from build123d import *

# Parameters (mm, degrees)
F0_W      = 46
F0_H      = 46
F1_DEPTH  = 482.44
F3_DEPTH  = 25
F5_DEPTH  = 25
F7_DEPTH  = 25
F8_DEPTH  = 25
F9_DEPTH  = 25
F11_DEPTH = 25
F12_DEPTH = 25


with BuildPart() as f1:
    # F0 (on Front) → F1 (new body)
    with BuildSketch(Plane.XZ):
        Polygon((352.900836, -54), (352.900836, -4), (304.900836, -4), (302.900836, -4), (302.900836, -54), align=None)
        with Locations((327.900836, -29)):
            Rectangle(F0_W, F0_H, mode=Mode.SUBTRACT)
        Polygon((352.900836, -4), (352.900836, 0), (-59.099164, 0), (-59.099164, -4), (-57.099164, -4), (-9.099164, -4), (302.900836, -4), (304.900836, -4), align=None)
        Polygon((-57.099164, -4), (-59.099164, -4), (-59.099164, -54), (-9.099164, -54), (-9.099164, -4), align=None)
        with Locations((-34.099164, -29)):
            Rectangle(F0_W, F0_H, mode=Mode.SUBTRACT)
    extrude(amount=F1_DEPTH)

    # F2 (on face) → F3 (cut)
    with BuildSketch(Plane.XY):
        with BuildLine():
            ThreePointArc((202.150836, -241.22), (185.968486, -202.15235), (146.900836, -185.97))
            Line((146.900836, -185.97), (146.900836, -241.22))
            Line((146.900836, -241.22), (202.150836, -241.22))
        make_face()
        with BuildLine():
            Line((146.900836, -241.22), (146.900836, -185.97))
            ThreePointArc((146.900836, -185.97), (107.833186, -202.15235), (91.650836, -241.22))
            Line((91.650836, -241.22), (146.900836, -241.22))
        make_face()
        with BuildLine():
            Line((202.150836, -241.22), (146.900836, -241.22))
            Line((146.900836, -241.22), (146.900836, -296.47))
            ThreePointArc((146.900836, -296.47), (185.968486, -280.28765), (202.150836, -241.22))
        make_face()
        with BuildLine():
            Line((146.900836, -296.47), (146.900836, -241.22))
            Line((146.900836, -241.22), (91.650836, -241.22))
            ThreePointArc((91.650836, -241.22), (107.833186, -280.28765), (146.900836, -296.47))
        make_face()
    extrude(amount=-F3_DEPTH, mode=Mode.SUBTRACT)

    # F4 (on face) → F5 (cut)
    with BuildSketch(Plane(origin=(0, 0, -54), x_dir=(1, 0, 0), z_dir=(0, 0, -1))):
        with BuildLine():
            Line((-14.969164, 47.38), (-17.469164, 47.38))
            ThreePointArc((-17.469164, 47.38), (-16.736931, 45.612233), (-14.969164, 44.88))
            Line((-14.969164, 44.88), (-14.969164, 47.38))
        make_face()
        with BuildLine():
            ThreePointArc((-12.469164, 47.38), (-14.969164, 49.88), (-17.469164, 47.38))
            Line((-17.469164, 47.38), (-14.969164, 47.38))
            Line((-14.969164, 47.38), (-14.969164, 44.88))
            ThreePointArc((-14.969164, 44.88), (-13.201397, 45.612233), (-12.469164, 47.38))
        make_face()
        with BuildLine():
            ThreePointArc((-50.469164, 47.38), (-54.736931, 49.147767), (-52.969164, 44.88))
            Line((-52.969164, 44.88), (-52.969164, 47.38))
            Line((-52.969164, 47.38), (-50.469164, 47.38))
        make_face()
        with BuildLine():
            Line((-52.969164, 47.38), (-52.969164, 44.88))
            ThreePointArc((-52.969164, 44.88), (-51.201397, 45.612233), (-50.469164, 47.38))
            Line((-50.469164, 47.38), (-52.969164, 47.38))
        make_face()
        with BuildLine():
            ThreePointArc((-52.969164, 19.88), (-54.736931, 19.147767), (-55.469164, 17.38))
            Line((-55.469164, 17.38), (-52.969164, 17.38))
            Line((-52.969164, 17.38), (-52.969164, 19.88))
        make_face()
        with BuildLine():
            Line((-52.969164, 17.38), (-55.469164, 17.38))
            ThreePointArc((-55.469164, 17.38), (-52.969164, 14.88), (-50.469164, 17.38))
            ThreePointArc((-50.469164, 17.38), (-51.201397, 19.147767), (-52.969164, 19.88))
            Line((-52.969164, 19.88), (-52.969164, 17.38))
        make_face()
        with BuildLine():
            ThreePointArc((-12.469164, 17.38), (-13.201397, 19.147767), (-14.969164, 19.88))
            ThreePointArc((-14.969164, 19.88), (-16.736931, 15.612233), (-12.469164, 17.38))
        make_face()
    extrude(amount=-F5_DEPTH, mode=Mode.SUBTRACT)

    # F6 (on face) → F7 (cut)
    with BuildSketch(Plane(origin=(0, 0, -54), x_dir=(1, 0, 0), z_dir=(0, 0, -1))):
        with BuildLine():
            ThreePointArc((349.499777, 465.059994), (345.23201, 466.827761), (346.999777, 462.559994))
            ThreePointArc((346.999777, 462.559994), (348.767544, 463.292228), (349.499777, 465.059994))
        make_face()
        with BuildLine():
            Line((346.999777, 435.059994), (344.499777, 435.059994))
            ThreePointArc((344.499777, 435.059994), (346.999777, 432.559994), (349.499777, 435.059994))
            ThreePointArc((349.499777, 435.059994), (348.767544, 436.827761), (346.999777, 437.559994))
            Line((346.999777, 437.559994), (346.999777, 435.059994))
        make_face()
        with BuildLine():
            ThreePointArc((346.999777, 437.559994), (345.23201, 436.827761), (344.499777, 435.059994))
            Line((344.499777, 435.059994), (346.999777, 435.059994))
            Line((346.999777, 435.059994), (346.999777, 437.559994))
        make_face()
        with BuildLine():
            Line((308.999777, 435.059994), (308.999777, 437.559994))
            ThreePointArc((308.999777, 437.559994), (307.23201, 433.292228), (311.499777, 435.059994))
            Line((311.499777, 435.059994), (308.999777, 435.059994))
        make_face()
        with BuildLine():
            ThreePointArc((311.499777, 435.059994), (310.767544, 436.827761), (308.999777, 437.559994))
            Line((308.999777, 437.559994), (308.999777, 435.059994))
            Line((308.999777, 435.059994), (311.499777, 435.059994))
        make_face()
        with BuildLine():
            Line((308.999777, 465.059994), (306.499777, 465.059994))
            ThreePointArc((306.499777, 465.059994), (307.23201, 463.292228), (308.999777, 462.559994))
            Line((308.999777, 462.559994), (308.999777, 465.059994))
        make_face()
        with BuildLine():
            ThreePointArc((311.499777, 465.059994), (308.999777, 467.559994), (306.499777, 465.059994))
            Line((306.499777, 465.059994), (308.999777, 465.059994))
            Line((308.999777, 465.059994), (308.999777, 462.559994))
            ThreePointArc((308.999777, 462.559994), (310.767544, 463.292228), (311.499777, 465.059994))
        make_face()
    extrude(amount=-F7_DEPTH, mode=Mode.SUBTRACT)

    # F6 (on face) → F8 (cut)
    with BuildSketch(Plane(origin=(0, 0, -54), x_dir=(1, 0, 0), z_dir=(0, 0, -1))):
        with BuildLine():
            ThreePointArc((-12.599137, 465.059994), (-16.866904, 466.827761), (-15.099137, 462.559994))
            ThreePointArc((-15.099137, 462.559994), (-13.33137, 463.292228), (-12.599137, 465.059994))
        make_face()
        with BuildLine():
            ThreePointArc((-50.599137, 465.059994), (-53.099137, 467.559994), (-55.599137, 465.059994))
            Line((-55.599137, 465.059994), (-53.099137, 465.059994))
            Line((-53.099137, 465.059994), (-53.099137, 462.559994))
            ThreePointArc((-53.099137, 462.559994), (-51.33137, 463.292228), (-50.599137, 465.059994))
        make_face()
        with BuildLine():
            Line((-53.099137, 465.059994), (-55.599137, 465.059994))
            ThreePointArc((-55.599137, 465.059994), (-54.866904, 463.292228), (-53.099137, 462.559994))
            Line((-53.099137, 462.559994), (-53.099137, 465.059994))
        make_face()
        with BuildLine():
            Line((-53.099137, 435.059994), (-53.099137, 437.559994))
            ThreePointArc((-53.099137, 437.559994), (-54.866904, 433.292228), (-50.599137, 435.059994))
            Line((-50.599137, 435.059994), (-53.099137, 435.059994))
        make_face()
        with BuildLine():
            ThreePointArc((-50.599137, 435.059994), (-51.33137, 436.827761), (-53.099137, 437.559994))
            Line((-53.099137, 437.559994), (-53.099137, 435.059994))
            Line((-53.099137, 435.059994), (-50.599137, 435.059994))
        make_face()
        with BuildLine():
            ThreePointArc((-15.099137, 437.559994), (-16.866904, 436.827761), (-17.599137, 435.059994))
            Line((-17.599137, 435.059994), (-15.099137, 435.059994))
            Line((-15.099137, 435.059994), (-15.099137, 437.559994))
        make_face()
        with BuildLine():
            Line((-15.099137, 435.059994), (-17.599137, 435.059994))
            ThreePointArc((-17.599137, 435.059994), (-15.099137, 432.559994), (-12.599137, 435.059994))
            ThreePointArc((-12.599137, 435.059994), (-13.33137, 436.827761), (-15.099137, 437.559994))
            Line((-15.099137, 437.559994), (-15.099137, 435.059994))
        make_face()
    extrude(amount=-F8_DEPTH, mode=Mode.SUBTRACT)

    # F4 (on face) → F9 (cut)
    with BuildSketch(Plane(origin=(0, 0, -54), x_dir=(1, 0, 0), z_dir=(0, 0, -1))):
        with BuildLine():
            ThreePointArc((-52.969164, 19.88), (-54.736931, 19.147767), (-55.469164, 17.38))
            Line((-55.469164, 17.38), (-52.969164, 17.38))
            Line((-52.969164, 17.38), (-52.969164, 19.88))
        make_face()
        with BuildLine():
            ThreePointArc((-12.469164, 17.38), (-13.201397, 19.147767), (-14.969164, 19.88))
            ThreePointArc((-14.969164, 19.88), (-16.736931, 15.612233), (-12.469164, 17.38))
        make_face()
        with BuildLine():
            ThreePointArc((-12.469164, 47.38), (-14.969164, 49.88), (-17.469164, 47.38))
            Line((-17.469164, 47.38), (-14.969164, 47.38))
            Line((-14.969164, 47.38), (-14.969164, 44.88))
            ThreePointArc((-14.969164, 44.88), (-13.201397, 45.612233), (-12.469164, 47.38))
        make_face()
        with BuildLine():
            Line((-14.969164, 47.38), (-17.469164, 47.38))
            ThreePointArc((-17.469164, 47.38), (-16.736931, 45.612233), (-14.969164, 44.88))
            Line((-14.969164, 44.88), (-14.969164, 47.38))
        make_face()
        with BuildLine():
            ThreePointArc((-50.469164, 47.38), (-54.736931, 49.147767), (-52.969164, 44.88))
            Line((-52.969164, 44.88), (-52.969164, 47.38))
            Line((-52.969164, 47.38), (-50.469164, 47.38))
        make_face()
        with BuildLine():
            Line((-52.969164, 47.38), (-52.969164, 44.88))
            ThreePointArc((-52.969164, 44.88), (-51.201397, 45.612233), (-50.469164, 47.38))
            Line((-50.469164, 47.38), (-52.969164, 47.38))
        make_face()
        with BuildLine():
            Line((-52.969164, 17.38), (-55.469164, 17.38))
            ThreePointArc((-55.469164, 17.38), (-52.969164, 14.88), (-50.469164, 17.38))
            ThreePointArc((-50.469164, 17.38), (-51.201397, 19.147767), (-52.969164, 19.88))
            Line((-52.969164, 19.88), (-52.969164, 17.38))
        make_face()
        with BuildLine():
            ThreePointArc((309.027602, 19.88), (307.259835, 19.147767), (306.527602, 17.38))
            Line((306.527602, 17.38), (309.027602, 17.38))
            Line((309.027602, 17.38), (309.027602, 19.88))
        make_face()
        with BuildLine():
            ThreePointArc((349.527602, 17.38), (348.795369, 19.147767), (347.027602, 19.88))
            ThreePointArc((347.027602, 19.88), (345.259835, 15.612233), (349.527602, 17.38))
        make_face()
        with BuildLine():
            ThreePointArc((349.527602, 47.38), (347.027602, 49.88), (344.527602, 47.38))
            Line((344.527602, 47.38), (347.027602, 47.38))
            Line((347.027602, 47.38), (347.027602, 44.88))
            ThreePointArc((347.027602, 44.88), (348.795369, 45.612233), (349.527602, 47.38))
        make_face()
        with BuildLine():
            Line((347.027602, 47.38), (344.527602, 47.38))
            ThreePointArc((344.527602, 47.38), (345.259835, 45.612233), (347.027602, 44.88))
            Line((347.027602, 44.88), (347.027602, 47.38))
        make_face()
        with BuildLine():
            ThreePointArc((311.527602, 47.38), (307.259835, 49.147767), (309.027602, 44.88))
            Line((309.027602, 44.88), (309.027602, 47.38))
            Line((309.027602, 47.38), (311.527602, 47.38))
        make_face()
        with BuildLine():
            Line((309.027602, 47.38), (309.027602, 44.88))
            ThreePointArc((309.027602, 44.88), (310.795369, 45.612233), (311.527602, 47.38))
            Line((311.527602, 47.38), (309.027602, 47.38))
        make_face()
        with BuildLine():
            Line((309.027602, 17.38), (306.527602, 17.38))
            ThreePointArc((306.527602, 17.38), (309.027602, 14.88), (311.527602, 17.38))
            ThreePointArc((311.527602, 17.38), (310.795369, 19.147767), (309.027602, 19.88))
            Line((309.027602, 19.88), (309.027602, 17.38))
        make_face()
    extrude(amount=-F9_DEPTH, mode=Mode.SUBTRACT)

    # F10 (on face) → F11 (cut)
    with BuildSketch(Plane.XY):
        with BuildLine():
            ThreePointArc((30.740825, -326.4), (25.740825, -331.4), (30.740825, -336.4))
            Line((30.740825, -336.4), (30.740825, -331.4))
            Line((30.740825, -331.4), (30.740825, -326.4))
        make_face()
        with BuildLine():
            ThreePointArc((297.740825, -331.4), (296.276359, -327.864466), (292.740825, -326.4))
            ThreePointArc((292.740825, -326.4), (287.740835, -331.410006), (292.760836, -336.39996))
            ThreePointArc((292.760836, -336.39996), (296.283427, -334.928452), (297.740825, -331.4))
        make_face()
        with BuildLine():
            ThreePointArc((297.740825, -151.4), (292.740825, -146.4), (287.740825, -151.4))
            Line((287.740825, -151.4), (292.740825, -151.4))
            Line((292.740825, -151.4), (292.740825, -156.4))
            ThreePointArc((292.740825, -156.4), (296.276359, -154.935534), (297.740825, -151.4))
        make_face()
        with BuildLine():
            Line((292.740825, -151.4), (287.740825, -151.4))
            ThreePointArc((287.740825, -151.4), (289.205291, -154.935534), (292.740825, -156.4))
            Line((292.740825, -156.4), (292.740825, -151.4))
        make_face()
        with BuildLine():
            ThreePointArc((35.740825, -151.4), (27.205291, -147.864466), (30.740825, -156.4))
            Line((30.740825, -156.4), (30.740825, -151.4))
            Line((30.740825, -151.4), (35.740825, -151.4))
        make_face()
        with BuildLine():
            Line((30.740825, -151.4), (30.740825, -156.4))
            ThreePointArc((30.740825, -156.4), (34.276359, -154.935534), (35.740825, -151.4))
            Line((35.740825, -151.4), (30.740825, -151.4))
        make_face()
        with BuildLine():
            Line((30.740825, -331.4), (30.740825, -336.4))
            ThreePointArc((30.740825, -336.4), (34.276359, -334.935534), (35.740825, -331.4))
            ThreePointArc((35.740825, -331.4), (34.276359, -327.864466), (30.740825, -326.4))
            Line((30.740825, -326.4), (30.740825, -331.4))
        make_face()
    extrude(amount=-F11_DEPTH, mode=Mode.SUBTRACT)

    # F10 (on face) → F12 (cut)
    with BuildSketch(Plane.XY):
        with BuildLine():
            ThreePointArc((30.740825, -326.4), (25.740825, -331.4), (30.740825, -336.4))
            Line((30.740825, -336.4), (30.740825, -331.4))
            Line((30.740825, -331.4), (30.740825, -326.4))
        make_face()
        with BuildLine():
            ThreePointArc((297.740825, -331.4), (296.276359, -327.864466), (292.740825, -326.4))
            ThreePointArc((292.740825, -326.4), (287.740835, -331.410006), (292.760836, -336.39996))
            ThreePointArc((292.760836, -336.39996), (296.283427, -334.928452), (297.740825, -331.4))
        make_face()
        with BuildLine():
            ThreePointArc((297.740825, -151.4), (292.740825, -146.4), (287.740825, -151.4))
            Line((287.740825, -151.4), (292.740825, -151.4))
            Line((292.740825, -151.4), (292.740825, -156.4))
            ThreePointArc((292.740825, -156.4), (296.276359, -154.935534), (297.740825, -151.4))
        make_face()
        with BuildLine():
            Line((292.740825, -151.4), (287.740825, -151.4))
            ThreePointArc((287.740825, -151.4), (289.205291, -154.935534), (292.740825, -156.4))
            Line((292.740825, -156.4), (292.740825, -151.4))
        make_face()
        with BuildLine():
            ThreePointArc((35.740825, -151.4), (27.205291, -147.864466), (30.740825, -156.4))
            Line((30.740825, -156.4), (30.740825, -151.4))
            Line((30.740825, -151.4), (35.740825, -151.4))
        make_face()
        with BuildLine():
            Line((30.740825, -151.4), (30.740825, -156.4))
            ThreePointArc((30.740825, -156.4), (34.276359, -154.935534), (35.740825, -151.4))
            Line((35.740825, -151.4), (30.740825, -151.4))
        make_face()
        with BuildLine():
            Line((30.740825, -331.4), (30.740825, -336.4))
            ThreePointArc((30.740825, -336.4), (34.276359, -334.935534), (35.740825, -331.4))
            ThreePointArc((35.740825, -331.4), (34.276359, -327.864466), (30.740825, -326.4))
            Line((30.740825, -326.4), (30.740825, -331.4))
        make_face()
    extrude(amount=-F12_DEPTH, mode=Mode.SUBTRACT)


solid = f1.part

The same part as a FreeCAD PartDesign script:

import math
import FreeCAD as App
import Part
import Sketcher
from FreeCAD import Vector

doc = App.newDocument("Part")
body = doc.addObject("PartDesign::Body", "Body")

# Sketch on XZ plane
sketch1 = body.newObject("Sketcher::SketchObject", "Sketch")
sketch1.AttachmentSupport = (doc.getObject("XZ_Plane"), [""])
sketch1.MapMode = "FlatFace"
sketch1.addGeometry(Part.LineSegment(Vector(353, -54, 0), Vector(353, 0, 0)), False)
sketch1.addGeometry(Part.LineSegment(Vector(353, 0, 0), Vector(-59, 0, 0)), False)
sketch1.addGeometry(Part.LineSegment(Vector(-59, 0, 0), Vector(-59, -54, 0)), False)
sketch1.addGeometry(Part.LineSegment(Vector(-59, -54, 0), Vector(-9, -54, 0)), False)
sketch1.addGeometry(Part.LineSegment(Vector(-9, -54, 0), Vector(-9, -4, 0)), False)
sketch1.addGeometry(Part.LineSegment(Vector(-9, -4, 0), Vector(303, -4, 0)), False)
sketch1.addGeometry(Part.LineSegment(Vector(303, -4, 0), Vector(303, -54, 0)), False)
sketch1.addGeometry(Part.LineSegment(Vector(303, -54, 0), Vector(353, -54, 0)), False)
sketch1.addGeometry(Part.LineSegment(Vector(-11, -52, 0), Vector(-57, -52, 0)), False)
sketch1.addGeometry(Part.LineSegment(Vector(-57, -52, 0), Vector(-57, -6, 0)), False)
sketch1.addGeometry(Part.LineSegment(Vector(-57, -6, 0), Vector(-11, -6, 0)), False)
sketch1.addGeometry(Part.LineSegment(Vector(-11, -6, 0), Vector(-11, -52, 0)), False)
sketch1.addGeometry(Part.LineSegment(Vector(351, -52, 0), Vector(305, -52, 0)), False)
sketch1.addGeometry(Part.LineSegment(Vector(305, -52, 0), Vector(305, -6, 0)), False)
sketch1.addGeometry(Part.LineSegment(Vector(305, -6, 0), Vector(351, -6, 0)), False)
sketch1.addGeometry(Part.LineSegment(Vector(351, -6, 0), Vector(351, -52, 0)), False)
sketch1.addConstraint(Sketcher.Constraint("Coincident", 0, 2, 1, 1))
sketch1.addConstraint(Sketcher.Constraint("Coincident", 1, 2, 2, 1))
sketch1.addConstraint(Sketcher.Constraint("Coincident", 2, 2, 3, 1))
sketch1.addConstraint(Sketcher.Constraint("Coincident", 3, 2, 4, 1))
sketch1.addConstraint(Sketcher.Constraint("Coincident", 4, 2, 5, 1))
sketch1.addConstraint(Sketcher.Constraint("Coincident", 5, 2, 6, 1))
sketch1.addConstraint(Sketcher.Constraint("Coincident", 6, 2, 7, 1))
sketch1.addConstraint(Sketcher.Constraint("Coincident", 7, 2, 0, 1))
sketch1.addConstraint(Sketcher.Constraint("Coincident", 8, 2, 9, 1))
sketch1.addConstraint(Sketcher.Constraint("Coincident", 9, 2, 10, 1))
sketch1.addConstraint(Sketcher.Constraint("Coincident", 10, 2, 11, 1))
sketch1.addConstraint(Sketcher.Constraint("Coincident", 11, 2, 8, 1))
sketch1.addConstraint(Sketcher.Constraint("Coincident", 12, 2, 13, 1))
sketch1.addConstraint(Sketcher.Constraint("Coincident", 13, 2, 14, 1))
sketch1.addConstraint(Sketcher.Constraint("Coincident", 14, 2, 15, 1))
sketch1.addConstraint(Sketcher.Constraint("Coincident", 15, 2, 12, 1))
sketch1.addConstraint(Sketcher.Constraint("Vertical", 0))
sketch1.addConstraint(Sketcher.Constraint("Horizontal", 1))
sketch1.addConstraint(Sketcher.Constraint("Vertical", 2))
sketch1.addConstraint(Sketcher.Constraint("Horizontal", 3))
sketch1.addConstraint(Sketcher.Constraint("Vertical", 4))
sketch1.addConstraint(Sketcher.Constraint("Horizontal", 5))
sketch1.addConstraint(Sketcher.Constraint("Vertical", 6))
sketch1.addConstraint(Sketcher.Constraint("Horizontal", 7))
sketch1.addConstraint(Sketcher.Constraint("Horizontal", 8))
sketch1.addConstraint(Sketcher.Constraint("Vertical", 9))
sketch1.addConstraint(Sketcher.Constraint("Horizontal", 10))
sketch1.addConstraint(Sketcher.Constraint("Vertical", 11))
sketch1.addConstraint(Sketcher.Constraint("Horizontal", 12))
sketch1.addConstraint(Sketcher.Constraint("Vertical", 13))
sketch1.addConstraint(Sketcher.Constraint("Horizontal", 14))
sketch1.addConstraint(Sketcher.Constraint("Vertical", 15))
sketch1.addConstraint(Sketcher.Constraint("PointOnObject", 0, 2, -1))
sketch1.addConstraint(Sketcher.Constraint("Horizontal", 3, 2, 6, 2))
sketch1.addConstraint(Sketcher.Constraint("Horizontal", 11, 2, 12, 2))
sketch1.addConstraint(Sketcher.Constraint("Horizontal", 10, 2, 13, 2))
sketch1.addConstraint(Sketcher.Constraint("Equal", 3, 7))
sketch1.addConstraint(Sketcher.Constraint("Equal", 10, 12))
sketch1.addConstraint(Sketcher.Constraint("Equal", 7, 4))
sketch1.addConstraint(Sketcher.Constraint("Equal", 14, 9))
sketch1.addConstraint(Sketcher.Constraint("DistanceX", 1, 2, 1, 1, 412.0))
sketch1.addConstraint(Sketcher.Constraint("DistanceX", 3, 1, 3, 2, 50.0))
sketch1.addConstraint(Sketcher.Constraint("DistanceX", 8, 2, 8, 1, 46.0))
sketch1.addConstraint(Sketcher.Constraint("DistanceY", 0, 1, 0, 2, 54.0))
sketch1.addConstraint(Sketcher.Constraint("DistanceY", 8, 2, -1, 1, 52.0))
sketch1.addConstraint(Sketcher.Constraint("DistanceX", 2, 2, 8, 2, 2.0))
sketch1.addConstraint(Sketcher.Constraint("DistanceX", 6, 2, 12, 2, 2.0))
sketch1.addConstraint(Sketcher.Constraint("DistanceX", -1, 1, 0, 2, 352.900836))
pad1 = body.newObject("PartDesign::Pad", "Pad")
pad1.Profile = sketch1
pad1.Length = 482.44

# Sketch on XY plane
sketch2 = body.newObject("Sketcher::SketchObject", "Sketch001")
sketch2.AttachmentSupport = (doc.getObject("XY_Plane"), [""])
sketch2.MapMode = "FlatFace"
sketch2.addGeometry(Part.ArcOfCircle(Part.Circle(Vector(147, -241, 0), Vector(0, 0, 1), 55), math.radians(0), math.radians(90)), False)
sketch2.addGeometry(Part.ArcOfCircle(Part.Circle(Vector(147, -241, 0), Vector(0, 0, 1), 55), math.radians(90), math.radians(180)), False)
sketch2.addGeometry(Part.ArcOfCircle(Part.Circle(Vector(147, -241, 0), Vector(0, 0, 1), 55), math.radians(180), math.radians(270)), False)
sketch2.addGeometry(Part.ArcOfCircle(Part.Circle(Vector(147, -241, 0), Vector(0, 0, 1), 55), math.radians(-90), math.radians(0)), False)
sketch2.addConstraint(Sketcher.Constraint("Tangent", 0, 2, 1, 1))
sketch2.addConstraint(Sketcher.Constraint("Tangent", 1, 2, 2, 1))
sketch2.addConstraint(Sketcher.Constraint("Tangent", 2, 2, 3, 1))
sketch2.addConstraint(Sketcher.Constraint("Tangent", 3, 2, 0, 1))
sketch2.addConstraint(Sketcher.Constraint("Equal", 0, 1))
sketch2.addConstraint(Sketcher.Constraint("Horizontal", 3, 3, 1, 2))
sketch2.addConstraint(Sketcher.Constraint("Horizontal", 1, 2, 3, 2))
sketch2.addConstraint(Sketcher.Constraint("Vertical", 3, 3, 0, 2))
sketch2.addConstraint(Sketcher.Constraint("Vertical", 0, 2, 2, 2))
sketch2.addConstraint(Sketcher.Constraint("Radius", 0, 55.249999))
sketch2.addConstraint(Sketcher.Constraint("DistanceY", 0, 3, -1, 1, 241.219999))
sketch2.addConstraint(Sketcher.Constraint("DistanceX", -1, 1, 0, 3, 146.900837))
pocket1 = body.newObject("PartDesign::Pocket", "Pocket")
pocket1.Profile = sketch2
pocket1.Length = 25

# Sketch on XY plane
sketch3 = body.newObject("Sketcher::SketchObject", "Sketch002")
sketch3.AttachmentSupport = (doc.getObject("XY_Plane"), [""])
sketch3.MapMode = "FlatFace"
sketch3.AttachmentOffset = App.Placement(Vector(0, 0, -54), App.Rotation())
sketch3.addGeometry(Part.ArcOfCircle(Part.Circle(Vector(-15, -47.4, 0), Vector(0, 0, 1), 2.5), math.radians(90), math.radians(180)), False)
sketch3.addGeometry(Part.ArcOfCircle(Part.Circle(Vector(-15, -47.4, 0), Vector(0, 0, 1), 2.5), math.radians(0), math.radians(90)), False)
sketch3.addGeometry(Part.ArcOfCircle(Part.Circle(Vector(-15, -47.4, 0), Vector(0, 0, 1), 2.5), math.radians(180), math.radians(360)), False)
sketch3.addGeometry(Part.ArcOfCircle(Part.Circle(Vector(-53, -47.4, 0), Vector(0, 0, 1), 2.5), math.radians(90), math.radians(360)), False)
sketch3.addGeometry(Part.ArcOfCircle(Part.Circle(Vector(-53, -47.4, 0), Vector(0, 0, 1), 2.5), math.radians(0), math.radians(90)), False)
sketch3.addGeometry(Part.ArcOfCircle(Part.Circle(Vector(-53, -17.4, 0), Vector(0, 0, 1), 2.5), math.radians(180), math.radians(270)), False)
sketch3.addGeometry(Part.ArcOfCircle(Part.Circle(Vector(-53, -17.4, 0), Vector(0, 0, 1), 2.5), math.radians(0), math.radians(180)), False)
sketch3.addGeometry(Part.ArcOfCircle(Part.Circle(Vector(-53, -17.4, 0), Vector(0, 0, 1), 2.5), math.radians(-90), math.radians(0)), False)
sketch3.addGeometry(Part.ArcOfCircle(Part.Circle(Vector(-15, -17.4, 0), Vector(0, 0, 1), 2.5), math.radians(-90), math.radians(0)), False)
sketch3.addGeometry(Part.ArcOfCircle(Part.Circle(Vector(-15, -17.4, 0), Vector(0, 0, 1), 2.5), math.radians(0), math.radians(270)), False)
sketch3.addConstraint(Sketcher.Constraint("Tangent", 0, 1, 1, 2))
sketch3.addConstraint(Sketcher.Constraint("Tangent", 1, 1, 2, 2))
sketch3.addConstraint(Sketcher.Constraint("Tangent", 2, 1, 0, 2))
sketch3.addConstraint(Sketcher.Constraint("Tangent", 3, 1, 4, 2))
sketch3.addConstraint(Sketcher.Constraint("Coincident", 4, 1, 3, 2))
sketch3.addConstraint(Sketcher.Constraint("Tangent", 5, 1, 6, 2))
sketch3.addConstraint(Sketcher.Constraint("Tangent", 6, 1, 7, 2))
sketch3.addConstraint(Sketcher.Constraint("Tangent", 7, 1, 5, 2))
sketch3.addConstraint(Sketcher.Constraint("Tangent", 8, 1, 9, 2))
sketch3.addConstraint(Sketcher.Constraint("Coincident", 9, 1, 8, 2))
sketch3.addConstraint(Sketcher.Constraint("Equal", 2, 3))
sketch3.addConstraint(Sketcher.Constraint("Equal", 4, 5))
sketch3.addConstraint(Sketcher.Constraint("Equal", 7, 8))
sketch3.addConstraint(Sketcher.Constraint("Horizontal", 2, 3, 3, 3))
sketch3.addConstraint(Sketcher.Constraint("Horizontal", 7, 3, 8, 3))
sketch3.addConstraint(Sketcher.Constraint("Horizontal", 4, 3, 1, 1))
sketch3.addConstraint(Sketcher.Constraint("Horizontal", 1, 1, 2, 1))
sketch3.addConstraint(Sketcher.Constraint("Horizontal", 2, 1, 4, 1))
sketch3.addConstraint(Sketcher.Constraint("Horizontal", 9, 3, 5, 1))
sketch3.addConstraint(Sketcher.Constraint("Horizontal", 5, 1, 6, 1))
sketch3.addConstraint(Sketcher.Constraint("Horizontal", 6, 1, 9, 1))
sketch3.addConstraint(Sketcher.Constraint("Vertical", 4, 3, 5, 3))
sketch3.addConstraint(Sketcher.Constraint("Vertical", 2, 3, 8, 3))
sketch3.addConstraint(Sketcher.Constraint("Vertical", 9, 3, 0, 1))
sketch3.addConstraint(Sketcher.Constraint("Vertical", 7, 3, 3, 1))
sketch3.addConstraint(Sketcher.Constraint("Vertical", 3, 1, 7, 1))
sketch3.addConstraint(Sketcher.Constraint("Vertical", 0, 1, 8, 1))
sketch3.addConstraint(Sketcher.Constraint("Radius", 0, 2.5))
sketch3.addConstraint(Sketcher.Constraint("DistanceX", 3, 3, 0, 3, 38.0))
sketch3.addConstraint(Sketcher.Constraint("DistanceY", 4, 3, 5, 3, 30.0))
sketch3.addConstraint(Sketcher.Constraint("DistanceY", 0, 3, -1, 1, 47.38))
sketch3.addConstraint(Sketcher.Constraint("DistanceX", 0, 3, -1, 1, 14.969164))
pocket2 = body.newObject("PartDesign::Pocket", "Pocket001")
pocket2.Profile = sketch3
pocket2.Length = 25
pocket2.Reversed = True

# Sketch on XY plane
sketch4 = body.newObject("Sketcher::SketchObject", "Sketch003")
sketch4.AttachmentSupport = (doc.getObject("XY_Plane"), [""])
sketch4.MapMode = "FlatFace"
sketch4.AttachmentOffset = App.Placement(Vector(0, 0, -54), App.Rotation())
sketch4.addGeometry(Part.ArcOfCircle(Part.Circle(Vector(347, -465.1, 0), Vector(0, 0, 1), 2.5), math.radians(90), math.radians(360)), False)
sketch4.addGeometry(Part.ArcOfCircle(Part.Circle(Vector(347, -465.1, 0), Vector(0, 0, 1), 2.5), math.radians(0), math.radians(90)), False)
sketch4.addGeometry(Part.ArcOfCircle(Part.Circle(Vector(347, -435.1, 0), Vector(0, 0, 1), 2.5), math.radians(0), math.radians(180)), False)
sketch4.addGeometry(Part.ArcOfCircle(Part.Circle(Vector(347, -435.1, 0), Vector(0, 0, 1), 2.5), math.radians(-90), math.radians(0)), False)
sketch4.addGeometry(Part.ArcOfCircle(Part.Circle(Vector(347, -435.1, 0), Vector(0, 0, 1), 2.5), math.radians(180), math.radians(270)), False)
sketch4.addGeometry(Part.ArcOfCircle(Part.Circle(Vector(309, -435.1, 0), Vector(0, 0, 1), 2.5), math.radians(0), math.radians(270)), False)
sketch4.addGeometry(Part.ArcOfCircle(Part.Circle(Vector(309, -435.1, 0), Vector(0, 0, 1), 2.5), math.radians(-90), math.radians(0)), False)
sketch4.addGeometry(Part.ArcOfCircle(Part.Circle(Vector(309, -465.1, 0), Vector(0, 0, 1), 2.5), math.radians(90), math.radians(180)), False)
sketch4.addGeometry(Part.ArcOfCircle(Part.Circle(Vector(309, -465.1, 0), Vector(0, 0, 1), 2.5), math.radians(0), math.radians(90)), False)
sketch4.addGeometry(Part.ArcOfCircle(Part.Circle(Vector(309, -465.1, 0), Vector(0, 0, 1), 2.5), math.radians(180), math.radians(360)), False)
sketch4.addConstraint(Sketcher.Constraint("Tangent", 0, 1, 1, 2))
sketch4.addConstraint(Sketcher.Constraint("Coincident", 1, 1, 0, 2))
sketch4.addConstraint(Sketcher.Constraint("Tangent", 2, 1, 3, 2))
sketch4.addConstraint(Sketcher.Constraint("Tangent", 3, 1, 4, 2))
sketch4.addConstraint(Sketcher.Constraint("Tangent", 4, 1, 2, 2))
sketch4.addConstraint(Sketcher.Constraint("Tangent", 5, 1, 6, 2))
sketch4.addConstraint(Sketcher.Constraint("Coincident", 6, 1, 5, 2))
sketch4.addConstraint(Sketcher.Constraint("Tangent", 7, 1, 8, 2))
sketch4.addConstraint(Sketcher.Constraint("Tangent", 8, 1, 9, 2))
sketch4.addConstraint(Sketcher.Constraint("Tangent", 9, 1, 7, 2))
sketch4.addConstraint(Sketcher.Constraint("Equal", 1, 2))
sketch4.addConstraint(Sketcher.Constraint("Equal", 4, 5))
sketch4.addConstraint(Sketcher.Constraint("Equal", 6, 7))
sketch4.addConstraint(Sketcher.Constraint("Horizontal", 4, 3, 5, 3))
sketch4.addConstraint(Sketcher.Constraint("Horizontal", 1, 3, 7, 3))
sketch4.addConstraint(Sketcher.Constraint("Horizontal", 9, 3, 1, 1))
sketch4.addConstraint(Sketcher.Constraint("Horizontal", 6, 3, 2, 1))
sketch4.addConstraint(Sketcher.Constraint("Horizontal", 2, 1, 4, 1))
sketch4.addConstraint(Sketcher.Constraint("Horizontal", 4, 1, 5, 1))
sketch4.addConstraint(Sketcher.Constraint("Horizontal", 1, 1, 8, 1))
sketch4.addConstraint(Sketcher.Constraint("Horizontal", 8, 1, 9, 1))
sketch4.addConstraint(Sketcher.Constraint("Vertical", 1, 3, 2, 3))
sketch4.addConstraint(Sketcher.Constraint("Vertical", 6, 3, 7, 3))
sketch4.addConstraint(Sketcher.Constraint("Vertical", 4, 3, 0, 1))
sketch4.addConstraint(Sketcher.Constraint("Vertical", 0, 1, 3, 1))
sketch4.addConstraint(Sketcher.Constraint("Vertical", 9, 3, 6, 1))
sketch4.addConstraint(Sketcher.Constraint("Vertical", 6, 1, 7, 1))
sketch4.addConstraint(Sketcher.Constraint("Radius", 0, 2.5))
sketch4.addConstraint(Sketcher.Constraint("DistanceY", 0, 3, 2, 3, 30.0))
sketch4.addConstraint(Sketcher.Constraint("DistanceX", 5, 3, 4, 3, 38.0))
sketch4.addConstraint(Sketcher.Constraint("DistanceX", -1, 1, 7, 3, 308.999779))
sketch4.addConstraint(Sketcher.Constraint("DistanceY", 0, 3, -1, 1, 465.059994))
pocket3 = body.newObject("PartDesign::Pocket", "Pocket002")
pocket3.Profile = sketch4
pocket3.Length = 25
pocket3.Reversed = True

# Sketch on XY plane
sketch5 = body.newObject("Sketcher::SketchObject", "Sketch004")
sketch5.AttachmentSupport = (doc.getObject("XY_Plane"), [""])
sketch5.MapMode = "FlatFace"
sketch5.AttachmentOffset = App.Placement(Vector(0, 0, -54), App.Rotation())
sketch5.addGeometry(Part.ArcOfCircle(Part.Circle(Vector(-15.1, -465.1, 0), Vector(0, 0, 1), 2.5), math.radians(90), math.radians(360)), False)
sketch5.addGeometry(Part.ArcOfCircle(Part.Circle(Vector(-15.1, -465.1, 0), Vector(0, 0, 1), 2.5), math.radians(0), math.radians(90)), False)
sketch5.addGeometry(Part.ArcOfCircle(Part.Circle(Vector(-53.1, -465.1, 0), Vector(0, 0, 1), 2.5), math.radians(180), math.radians(360)), False)
sketch5.addGeometry(Part.ArcOfCircle(Part.Circle(Vector(-53.1, -465.1, 0), Vector(0, 0, 1), 2.5), math.radians(90), math.radians(180)), False)
sketch5.addGeometry(Part.ArcOfCircle(Part.Circle(Vector(-53.1, -465.1, 0), Vector(0, 0, 1), 2.5), math.radians(0), math.radians(90)), False)
sketch5.addGeometry(Part.ArcOfCircle(Part.Circle(Vector(-53.1, -435.1, 0), Vector(0, 0, 1), 2.5), math.radians(0), math.radians(270)), False)
sketch5.addGeometry(Part.ArcOfCircle(Part.Circle(Vector(-53.1, -435.1, 0), Vector(0, 0, 1), 2.5), math.radians(-90), math.radians(0)), False)
sketch5.addGeometry(Part.ArcOfCircle(Part.Circle(Vector(-15.1, -435.1, 0), Vector(0, 0, 1), 2.5), math.radians(180), math.radians(270)), False)
sketch5.addGeometry(Part.ArcOfCircle(Part.Circle(Vector(-15.1, -435.1, 0), Vector(0, 0, 1), 2.5), math.radians(0), math.radians(180)), False)
sketch5.addGeometry(Part.ArcOfCircle(Part.Circle(Vector(-15.1, -435.1, 0), Vector(0, 0, 1), 2.5), math.radians(-90), math.radians(0)), False)
sketch5.addConstraint(Sketcher.Constraint("Tangent", 0, 1, 1, 2))
sketch5.addConstraint(Sketcher.Constraint("Coincident", 1, 1, 0, 2))
sketch5.addConstraint(Sketcher.Constraint("Tangent", 2, 1, 3, 2))
sketch5.addConstraint(Sketcher.Constraint("Tangent", 3, 1, 4, 2))
sketch5.addConstraint(Sketcher.Constraint("Tangent", 4, 1, 2, 2))
sketch5.addConstraint(Sketcher.Constraint("Tangent", 5, 1, 6, 2))
sketch5.addConstraint(Sketcher.Constraint("Coincident", 6, 1, 5, 2))
sketch5.addConstraint(Sketcher.Constraint("Tangent", 7, 1, 8, 2))
sketch5.addConstraint(Sketcher.Constraint("Tangent", 8, 1, 9, 2))
sketch5.addConstraint(Sketcher.Constraint("Tangent", 9, 1, 7, 2))
sketch5.addConstraint(Sketcher.Constraint("Equal", 1, 2))
sketch5.addConstraint(Sketcher.Constraint("Equal", 4, 5))
sketch5.addConstraint(Sketcher.Constraint("Equal", 6, 7))
sketch5.addConstraint(Sketcher.Constraint("Horizontal", 1, 3, 2, 3))
sketch5.addConstraint(Sketcher.Constraint("Horizontal", 6, 3, 7, 3))
sketch5.addConstraint(Sketcher.Constraint("Horizontal", 4, 3, 1, 1))
sketch5.addConstraint(Sketcher.Constraint("Horizontal", 1, 1, 2, 1))
sketch5.addConstraint(Sketcher.Constraint("Horizontal", 2, 1, 4, 1))
sketch5.addConstraint(Sketcher.Constraint("Horizontal", 9, 3, 5, 1))
sketch5.addConstraint(Sketcher.Constraint("Horizontal", 5, 1, 7, 1))
sketch5.addConstraint(Sketcher.Constraint("Horizontal", 7, 1, 8, 1))
sketch5.addConstraint(Sketcher.Constraint("Vertical", 4, 3, 5, 3))
sketch5.addConstraint(Sketcher.Constraint("Vertical", 1, 3, 7, 3))
sketch5.addConstraint(Sketcher.Constraint("Vertical", 9, 3, 0, 1))
sketch5.addConstraint(Sketcher.Constraint("Vertical", 6, 3, 3, 1))
sketch5.addConstraint(Sketcher.Constraint("Vertical", 3, 1, 6, 1))
sketch5.addConstraint(Sketcher.Constraint("Vertical", 0, 1, 9, 1))
sketch5.addConstraint(Sketcher.Constraint("Radius", 0, 2.5))
sketch5.addConstraint(Sketcher.Constraint("DistanceX", 2, 3, 1, 3, 37.999998))
sketch5.addConstraint(Sketcher.Constraint("DistanceY", 2, 3, 5, 3, 30.0))
sketch5.addConstraint(Sketcher.Constraint("DistanceX", 1, 3, -1, 1, 15.099139))
sketch5.addConstraint(Sketcher.Constraint("DistanceY", 0, 3, -1, 1, 465.059994))
pocket4 = body.newObject("PartDesign::Pocket", "Pocket003")
pocket4.Profile = sketch5
pocket4.Length = 25
pocket4.Reversed = True

# Sketch on XY plane
sketch6 = body.newObject("Sketcher::SketchObject", "Sketch005")
sketch6.AttachmentSupport = (doc.getObject("XY_Plane"), [""])
sketch6.MapMode = "FlatFace"
sketch6.AttachmentOffset = App.Placement(Vector(0, 0, -54), App.Rotation())
sketch6.addGeometry(Part.ArcOfCircle(Part.Circle(Vector(-53, -17.4, 0), Vector(0, 0, 1), 2.5), math.radians(180), math.radians(270)), False)
sketch6.addGeometry(Part.ArcOfCircle(Part.Circle(Vector(-53, -17.4, 0), Vector(0, 0, 1), 2.5), math.radians(0), math.radians(180)), False)
sketch6.addGeometry(Part.ArcOfCircle(Part.Circle(Vector(-53, -17.4, 0), Vector(0, 0, 1), 2.5), math.radians(-90), math.radians(0)), False)
sketch6.addGeometry(Part.ArcOfCircle(Part.Circle(Vector(-15, -17.4, 0), Vector(0, 0, 1), 2.5), math.radians(-90), math.radians(0)), False)
sketch6.addGeometry(Part.ArcOfCircle(Part.Circle(Vector(-15, -17.4, 0), Vector(0, 0, 1), 2.5), math.radians(0), math.radians(270)), False)
sketch6.addGeometry(Part.ArcOfCircle(Part.Circle(Vector(-15, -47.4, 0), Vector(0, 0, 1), 2.5), math.radians(180), math.radians(360)), False)
sketch6.addGeometry(Part.ArcOfCircle(Part.Circle(Vector(-15, -47.4, 0), Vector(0, 0, 1), 2.5), math.radians(90), math.radians(180)), False)
sketch6.addGeometry(Part.ArcOfCircle(Part.Circle(Vector(-15, -47.4, 0), Vector(0, 0, 1), 2.5), math.radians(0), math.radians(90)), False)
sketch6.addGeometry(Part.ArcOfCircle(Part.Circle(Vector(-53, -47.4, 0), Vector(0, 0, 1), 2.5), math.radians(90), math.radians(360)), False)
sketch6.addGeometry(Part.ArcOfCircle(Part.Circle(Vector(-53, -47.4, 0), Vector(0, 0, 1), 2.5), math.radians(0), math.radians(90)), False)
sketch6.addGeometry(Part.ArcOfCircle(Part.Circle(Vector(309, -17.4, 0), Vector(0, 0, 1), 2.5), math.radians(180), math.radians(270)), False)
sketch6.addGeometry(Part.ArcOfCircle(Part.Circle(Vector(309, -17.4, 0), Vector(0, 0, 1), 2.5), math.radians(0), math.radians(180)), False)
sketch6.addGeometry(Part.ArcOfCircle(Part.Circle(Vector(309, -17.4, 0), Vector(0, 0, 1), 2.5), math.radians(-90), math.radians(0)), False)
sketch6.addGeometry(Part.ArcOfCircle(Part.Circle(Vector(347, -17.4, 0), Vector(0, 0, 1), 2.5), math.radians(-90), math.radians(0)), False)
sketch6.addGeometry(Part.ArcOfCircle(Part.Circle(Vector(347, -17.4, 0), Vector(0, 0, 1), 2.5), math.radians(0), math.radians(270)), False)
sketch6.addGeometry(Part.ArcOfCircle(Part.Circle(Vector(347, -47.4, 0), Vector(0, 0, 1), 2.5), math.radians(180), math.radians(360)), False)
sketch6.addGeometry(Part.ArcOfCircle(Part.Circle(Vector(347, -47.4, 0), Vector(0, 0, 1), 2.5), math.radians(90), math.radians(180)), False)
sketch6.addGeometry(Part.ArcOfCircle(Part.Circle(Vector(347, -47.4, 0), Vector(0, 0, 1), 2.5), math.radians(0), math.radians(90)), False)
sketch6.addGeometry(Part.ArcOfCircle(Part.Circle(Vector(309, -47.4, 0), Vector(0, 0, 1), 2.5), math.radians(90), math.radians(360)), False)
sketch6.addGeometry(Part.ArcOfCircle(Part.Circle(Vector(309, -47.4, 0), Vector(0, 0, 1), 2.5), math.radians(0), math.radians(90)), False)
sketch6.addConstraint(Sketcher.Constraint("Tangent", 0, 1, 1, 2))
sketch6.addConstraint(Sketcher.Constraint("Tangent", 1, 1, 2, 2))
sketch6.addConstraint(Sketcher.Constraint("Tangent", 2, 1, 0, 2))
sketch6.addConstraint(Sketcher.Constraint("Tangent", 3, 1, 4, 2))
sketch6.addConstraint(Sketcher.Constraint("Coincident", 4, 1, 3, 2))
sketch6.addConstraint(Sketcher.Constraint("Tangent", 5, 1, 6, 2))
sketch6.addConstraint(Sketcher.Constraint("Tangent", 6, 1, 7, 2))
sketch6.addConstraint(Sketcher.Constraint("Tangent", 7, 1, 5, 2))
sketch6.addConstraint(Sketcher.Constraint("Tangent", 8, 1, 9, 2))
sketch6.addConstraint(Sketcher.Constraint("Coincident", 9, 1, 8, 2))
sketch6.addConstraint(Sketcher.Constraint("Tangent", 10, 1, 11, 2))
sketch6.addConstraint(Sketcher.Constraint("Tangent", 11, 1, 12, 2))
sketch6.addConstraint(Sketcher.Constraint("Tangent", 12, 1, 10, 2))
sketch6.addConstraint(Sketcher.Constraint("Tangent", 13, 1, 14, 2))
sketch6.addConstraint(Sketcher.Constraint("Coincident", 14, 1, 13, 2))
sketch6.addConstraint(Sketcher.Constraint("Tangent", 15, 1, 16, 2))
sketch6.addConstraint(Sketcher.Constraint("Tangent", 16, 1, 17, 2))
sketch6.addConstraint(Sketcher.Constraint("Tangent", 17, 1, 15, 2))
sketch6.addConstraint(Sketcher.Constraint("Tangent", 18, 1, 19, 2))
sketch6.addConstraint(Sketcher.Constraint("Coincident", 19, 1, 18, 2))
sketch6.addConstraint(Sketcher.Constraint("Equal", 2, 3))
sketch6.addConstraint(Sketcher.Constraint("Equal", 4, 5))
sketch6.addConstraint(Sketcher.Constraint("Equal", 7, 8))
sketch6.addConstraint(Sketcher.Constraint("Equal", 9, 10))
sketch6.addConstraint(Sketcher.Constraint("Equal", 12, 13))
sketch6.addConstraint(Sketcher.Constraint("Equal", 14, 15))
sketch6.addConstraint(Sketcher.Constraint("Equal", 17, 18))
sketch6.addConstraint(Sketcher.Constraint("Horizontal", 2, 3, 3, 3))
sketch6.addConstraint(Sketcher.Constraint("Horizontal", 7, 3, 8, 3))
sketch6.addConstraint(Sketcher.Constraint("Horizontal", 4, 3, 10, 3))
sketch6.addConstraint(Sketcher.Constraint("Horizontal", 12, 3, 13, 3))
sketch6.addConstraint(Sketcher.Constraint("Horizontal", 9, 3, 15, 3))
sketch6.addConstraint(Sketcher.Constraint("Horizontal", 17, 3, 18, 3))
sketch6.addConstraint(Sketcher.Constraint("Horizontal", 14, 3, 0, 1))
sketch6.addConstraint(Sketcher.Constraint("Horizontal", 0, 1, 1, 1))
sketch6.addConstraint(Sketcher.Constraint("Horizontal", 1, 1, 4, 1))
sketch6.addConstraint(Sketcher.Constraint("Horizontal", 19, 3, 5, 1))
sketch6.addConstraint(Sketcher.Constraint("Horizontal", 5, 1, 7, 1))
sketch6.addConstraint(Sketcher.Constraint("Horizontal", 7, 1, 9, 1))
sketch6.addConstraint(Sketcher.Constraint("Horizontal", 4, 1, 10, 1))
sketch6.addConstraint(Sketcher.Constraint("Horizontal", 10, 1, 11, 1))
sketch6.addConstraint(Sketcher.Constraint("Horizontal", 11, 1, 14, 1))
sketch6.addConstraint(Sketcher.Constraint("Horizontal", 9, 1, 15, 1))
sketch6.addConstraint(Sketcher.Constraint("Horizontal", 15, 1, 17, 1))
sketch6.addConstraint(Sketcher.Constraint("Horizontal", 17, 1, 19, 1))
sketch6.addConstraint(Sketcher.Constraint("Vertical", 4, 3, 5, 3))
sketch6.addConstraint(Sketcher.Constraint("Vertical", 2, 3, 8, 3))
sketch6.addConstraint(Sketcher.Constraint("Vertical", 14, 3, 15, 3))
sketch6.addConstraint(Sketcher.Constraint("Vertical", 12, 3, 18, 3))
sketch6.addConstraint(Sketcher.Constraint("Vertical", 9, 3, 2, 1))
sketch6.addConstraint(Sketcher.Constraint("Vertical", 7, 3, 3, 1))
sketch6.addConstraint(Sketcher.Constraint("Vertical", 3, 1, 6, 1))
sketch6.addConstraint(Sketcher.Constraint("Vertical", 2, 1, 8, 1))
sketch6.addConstraint(Sketcher.Constraint("Vertical", 19, 3, 12, 1))
sketch6.addConstraint(Sketcher.Constraint("Vertical", 17, 3, 13, 1))
sketch6.addConstraint(Sketcher.Constraint("Vertical", 13, 1, 16, 1))
sketch6.addConstraint(Sketcher.Constraint("Vertical", 12, 1, 18, 1))
sketch6.addConstraint(Sketcher.Constraint("Radius", 0, 2.5))
sketch6.addConstraint(Sketcher.Constraint("DistanceX", 2, 3, 3, 3, 38.0))
sketch6.addConstraint(Sketcher.Constraint("DistanceY", 5, 3, 3, 3, 30.0))
sketch6.addConstraint(Sketcher.Constraint("DistanceX", 12, 3, 13, 3, 38.0))
sketch6.addConstraint(Sketcher.Constraint("DistanceY", 0, 3, -1, 1, 17.38))
sketch6.addConstraint(Sketcher.Constraint("DistanceX", -1, 1, 10, 3, 309.027602))
sketch6.addConstraint(Sketcher.Constraint("DistanceX", 0, 3, -1, 1, 52.969164))
pocket5 = body.newObject("PartDesign::Pocket", "Pocket004")
pocket5.Profile = sketch6
pocket5.Length = 25
pocket5.Reversed = True

# Sketch on XY plane
sketch7 = body.newObject("Sketcher::SketchObject", "Sketch006")
sketch7.AttachmentSupport = (doc.getObject("XY_Plane"), [""])
sketch7.MapMode = "FlatFace"
sketch7.addGeometry(Part.ArcOfCircle(Part.Circle(Vector(30.740825, -331.4, 0), Vector(0, 0, 1), 5), math.radians(90), math.radians(270)), False)
sketch7.addGeometry(Part.ArcOfCircle(Part.Circle(Vector(30.740825, -331.4, 0), Vector(0, 0, 1), 5), math.radians(-90.000004), math.radians(0.000004)), False)
sketch7.addGeometry(Part.ArcOfCircle(Part.Circle(Vector(30.740825, -331.4, 0), Vector(0, 0, 1), 5), math.radians(-0.000004), math.radians(90.000004)), False)
sketch7.addGeometry(Part.ArcOfCircle(Part.Circle(Vector(292.740825, -331.4, 0), Vector(0, 0, 1), 5), math.radians(-0.000004), math.radians(90.000004)), False)
sketch7.addGeometry(Part.ArcOfCircle(Part.Circle(Vector(292.740825, -331.4, 0), Vector(0, 0, 1), 5), math.radians(90), math.radians(270.22931)), False)
sketch7.addGeometry(Part.ArcOfCircle(Part.Circle(Vector(292.740826, -331.400001, 0), Vector(0, 0, 1), 4.999999), math.radians(-89.770696), math.radians(0.000006)), False)
sketch7.addGeometry(Part.ArcOfCircle(Part.Circle(Vector(292.740825, -151.4, 0), Vector(0, 0, 1), 5), math.radians(0), math.radians(180)), False)
sketch7.addGeometry(Part.ArcOfCircle(Part.Circle(Vector(292.740825, -151.4, 0), Vector(0, 0, 1), 5), math.radians(179.999996), math.radians(270.000004)), False)
sketch7.addGeometry(Part.ArcOfCircle(Part.Circle(Vector(292.740825, -151.4, 0), Vector(0, 0, 1), 5), math.radians(-90.000004), math.radians(0.000004)), False)
sketch7.addGeometry(Part.ArcOfCircle(Part.Circle(Vector(30.740825, -151.4, 0), Vector(0, 0, 1), 5), math.radians(-0.000001), math.radians(270.000001)), False)
sketch7.addGeometry(Part.ArcOfCircle(Part.Circle(Vector(30.740825, -151.4, 0), Vector(0, 0, 1), 5), math.radians(-90.000004), math.radians(0.000004)), False)
sketch7.addConstraint(Sketcher.Constraint("Tangent", 0, 2, 1, 1))
sketch7.addConstraint(Sketcher.Constraint("Tangent", 1, 2, 2, 1))
sketch7.addConstraint(Sketcher.Constraint("Tangent", 2, 2, 0, 1))
sketch7.addConstraint(Sketcher.Constraint("Tangent", 3, 2, 4, 1))
sketch7.addConstraint(Sketcher.Constraint("Tangent", 4, 2, 5, 1))
sketch7.addConstraint(Sketcher.Constraint("Tangent", 5, 2, 3, 1))
sketch7.addConstraint(Sketcher.Constraint("Tangent", 6, 2, 7, 1))
sketch7.addConstraint(Sketcher.Constraint("Tangent", 7, 2, 8, 1))
sketch7.addConstraint(Sketcher.Constraint("Tangent", 8, 2, 6, 1))
sketch7.addConstraint(Sketcher.Constraint("Tangent", 9, 1, 10, 2))
sketch7.addConstraint(Sketcher.Constraint("Coincident", 10, 1, 9, 2))
sketch7.addConstraint(Sketcher.Constraint("Equal", 2, 3))
sketch7.addConstraint(Sketcher.Constraint("Equal", 5, 6))
sketch7.addConstraint(Sketcher.Constraint("Equal", 8, 9))
sketch7.addConstraint(Sketcher.Constraint("Horizontal", 2, 3, 3, 3))
sketch7.addConstraint(Sketcher.Constraint("Horizontal", 8, 3, 9, 3))
sketch7.addConstraint(Sketcher.Constraint("Horizontal", 5, 3, 1, 2))
sketch7.addConstraint(Sketcher.Constraint("Horizontal", 1, 2, 5, 2))
sketch7.addConstraint(Sketcher.Constraint("Horizontal", 10, 3, 6, 2))
sketch7.addConstraint(Sketcher.Constraint("Horizontal", 6, 2, 8, 2))
sketch7.addConstraint(Sketcher.Constraint("Horizontal", 8, 2, 9, 1))
sketch7.addConstraint(Sketcher.Constraint("Vertical", 5, 3, 6, 3))
sketch7.addConstraint(Sketcher.Constraint("Vertical", 2, 3, 9, 3))
sketch7.addConstraint(Sketcher.Constraint("Vertical", 10, 3, 0, 2))
sketch7.addConstraint(Sketcher.Constraint("Vertical", 0, 2, 2, 2))
sketch7.addConstraint(Sketcher.Constraint("Vertical", 8, 3, 3, 2))
sketch7.addConstraint(Sketcher.Constraint("Vertical", 3, 2, 7, 2))
sketch7.addConstraint(Sketcher.Constraint("Vertical", 2, 2, 10, 1))
sketch7.addConstraint(Sketcher.Constraint("Radius", 0, 5.0))
sketch7.addConstraint(Sketcher.Constraint("DistanceX", 1, 3, 3, 3, 262.0))
sketch7.addConstraint(Sketcher.Constraint("DistanceY", 3, 3, 6, 3, 180.0))
sketch7.addConstraint(Sketcher.Constraint("DistanceY", 0, 3, -1, 1, 331.4))
sketch7.addConstraint(Sketcher.Constraint("DistanceY", 4, 2, -1, 1, 336.39996))
sketch7.addConstraint(Sketcher.Constraint("DistanceX", -1, 1, 0, 3, 30.740825))
pocket6 = body.newObject("PartDesign::Pocket", "Pocket005")
pocket6.Profile = sketch7
pocket6.Length = 25

# Sketch on XY plane
sketch8 = body.newObject("Sketcher::SketchObject", "Sketch007")
sketch8.AttachmentSupport = (doc.getObject("XY_Plane"), [""])
sketch8.MapMode = "FlatFace"
sketch8.addGeometry(Part.ArcOfCircle(Part.Circle(Vector(30.740825, -331.4, 0), Vector(0, 0, 1), 5), math.radians(90), math.radians(270)), False)
sketch8.addGeometry(Part.ArcOfCircle(Part.Circle(Vector(30.740825, -331.4, 0), Vector(0, 0, 1), 5), math.radians(-90.000004), math.radians(0.000004)), False)
sketch8.addGeometry(Part.ArcOfCircle(Part.Circle(Vector(30.740825, -331.4, 0), Vector(0, 0, 1), 5), math.radians(-0.000004), math.radians(90.000004)), False)
sketch8.addGeometry(Part.ArcOfCircle(Part.Circle(Vector(292.740825, -331.4, 0), Vector(0, 0, 1), 5), math.radians(-0.000004), math.radians(90.000004)), False)
sketch8.addGeometry(Part.ArcOfCircle(Part.Circle(Vector(292.740825, -331.4, 0), Vector(0, 0, 1), 5), math.radians(90), math.radians(270.22931)), False)
sketch8.addGeometry(Part.ArcOfCircle(Part.Circle(Vector(292.740826, -331.400001, 0), Vector(0, 0, 1), 4.999999), math.radians(-89.770696), math.radians(0.000006)), False)
sketch8.addGeometry(Part.ArcOfCircle(Part.Circle(Vector(292.740825, -151.4, 0), Vector(0, 0, 1), 5), math.radians(0), math.radians(180)), False)
sketch8.addGeometry(Part.ArcOfCircle(Part.Circle(Vector(292.740825, -151.4, 0), Vector(0, 0, 1), 5), math.radians(179.999996), math.radians(270.000004)), False)
sketch8.addGeometry(Part.ArcOfCircle(Part.Circle(Vector(292.740825, -151.4, 0), Vector(0, 0, 1), 5), math.radians(-90.000004), math.radians(0.000004)), False)
sketch8.addGeometry(Part.ArcOfCircle(Part.Circle(Vector(30.740825, -151.4, 0), Vector(0, 0, 1), 5), math.radians(-0.000001), math.radians(270.000001)), False)
sketch8.addGeometry(Part.ArcOfCircle(Part.Circle(Vector(30.740825, -151.4, 0), Vector(0, 0, 1), 5), math.radians(-90.000004), math.radians(0.000004)), False)
sketch8.addConstraint(Sketcher.Constraint("Tangent", 0, 2, 1, 1))
sketch8.addConstraint(Sketcher.Constraint("Tangent", 1, 2, 2, 1))
sketch8.addConstraint(Sketcher.Constraint("Tangent", 2, 2, 0, 1))
sketch8.addConstraint(Sketcher.Constraint("Tangent", 3, 2, 4, 1))
sketch8.addConstraint(Sketcher.Constraint("Tangent", 4, 2, 5, 1))
sketch8.addConstraint(Sketcher.Constraint("Tangent", 5, 2, 3, 1))
sketch8.addConstraint(Sketcher.Constraint("Tangent", 6, 2, 7, 1))
sketch8.addConstraint(Sketcher.Constraint("Tangent", 7, 2, 8, 1))
sketch8.addConstraint(Sketcher.Constraint("Tangent", 8, 2, 6, 1))
sketch8.addConstraint(Sketcher.Constraint("Tangent", 9, 1, 10, 2))
sketch8.addConstraint(Sketcher.Constraint("Coincident", 10, 1, 9, 2))
sketch8.addConstraint(Sketcher.Constraint("Equal", 2, 3))
sketch8.addConstraint(Sketcher.Constraint("Equal", 5, 6))
sketch8.addConstraint(Sketcher.Constraint("Equal", 8, 9))
sketch8.addConstraint(Sketcher.Constraint("Horizontal", 2, 3, 3, 3))
sketch8.addConstraint(Sketcher.Constraint("Horizontal", 8, 3, 9, 3))
sketch8.addConstraint(Sketcher.Constraint("Horizontal", 5, 3, 1, 2))
sketch8.addConstraint(Sketcher.Constraint("Horizontal", 1, 2, 5, 2))
sketch8.addConstraint(Sketcher.Constraint("Horizontal", 10, 3, 6, 2))
sketch8.addConstraint(Sketcher.Constraint("Horizontal", 6, 2, 8, 2))
sketch8.addConstraint(Sketcher.Constraint("Horizontal", 8, 2, 9, 1))
sketch8.addConstraint(Sketcher.Constraint("Vertical", 5, 3, 6, 3))
sketch8.addConstraint(Sketcher.Constraint("Vertical", 2, 3, 9, 3))
sketch8.addConstraint(Sketcher.Constraint("Vertical", 10, 3, 0, 2))
sketch8.addConstraint(Sketcher.Constraint("Vertical", 0, 2, 2, 2))
sketch8.addConstraint(Sketcher.Constraint("Vertical", 8, 3, 3, 2))
sketch8.addConstraint(Sketcher.Constraint("Vertical", 3, 2, 7, 2))
sketch8.addConstraint(Sketcher.Constraint("Vertical", 2, 2, 10, 1))
sketch8.addConstraint(Sketcher.Constraint("Radius", 0, 5.0))
sketch8.addConstraint(Sketcher.Constraint("DistanceX", 1, 3, 3, 3, 262.0))
sketch8.addConstraint(Sketcher.Constraint("DistanceY", 3, 3, 6, 3, 180.0))
sketch8.addConstraint(Sketcher.Constraint("DistanceY", 0, 3, -1, 1, 331.4))
sketch8.addConstraint(Sketcher.Constraint("DistanceY", 4, 2, -1, 1, 336.39996))
sketch8.addConstraint(Sketcher.Constraint("DistanceX", -1, 1, 0, 3, 30.740825))
pocket7 = body.newObject("PartDesign::Pocket", "Pocket006")
pocket7.Profile = sketch8
pocket7.Length = 25

doc.recompute()
